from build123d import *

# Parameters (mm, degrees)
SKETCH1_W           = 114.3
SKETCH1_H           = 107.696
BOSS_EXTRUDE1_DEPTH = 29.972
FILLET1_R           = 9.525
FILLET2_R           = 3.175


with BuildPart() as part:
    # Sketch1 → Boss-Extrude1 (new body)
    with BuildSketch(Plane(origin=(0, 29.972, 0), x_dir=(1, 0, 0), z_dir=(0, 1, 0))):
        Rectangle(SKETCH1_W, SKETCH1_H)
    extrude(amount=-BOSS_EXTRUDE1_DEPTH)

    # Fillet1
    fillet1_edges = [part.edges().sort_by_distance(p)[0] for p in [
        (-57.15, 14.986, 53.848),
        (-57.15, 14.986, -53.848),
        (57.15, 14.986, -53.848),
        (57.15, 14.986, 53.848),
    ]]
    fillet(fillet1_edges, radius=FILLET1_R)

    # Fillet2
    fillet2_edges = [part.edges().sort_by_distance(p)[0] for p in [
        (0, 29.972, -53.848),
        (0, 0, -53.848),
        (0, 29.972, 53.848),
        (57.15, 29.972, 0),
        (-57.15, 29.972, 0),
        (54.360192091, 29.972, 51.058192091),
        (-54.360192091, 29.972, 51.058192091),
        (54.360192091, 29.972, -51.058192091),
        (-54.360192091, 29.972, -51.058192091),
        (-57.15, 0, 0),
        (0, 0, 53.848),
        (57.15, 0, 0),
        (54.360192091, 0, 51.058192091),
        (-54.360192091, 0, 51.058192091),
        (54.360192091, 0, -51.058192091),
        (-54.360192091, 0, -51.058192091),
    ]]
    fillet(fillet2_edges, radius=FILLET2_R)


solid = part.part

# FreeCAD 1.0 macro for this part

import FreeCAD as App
import Part
import Sketcher

V = App.Vector
Q = App.Units.Quantity


def edges_at(feature, points):
    """Names of the edges that pass closest to the given points."""
    edges = feature.Shape.Edges
    near = lambda p: min(range(len(edges)), key=lambda i: edges[i].distToShape(Part.Vertex(*p))[0])
    return sorted({f"Edge{near(p) + 1}" for p in points})

doc = App.newDocument("Part")
params = doc.addObject("Spreadsheet::Sheet", "Params")
for row, (alias, value) in enumerate([
    ("sketch1_width", "4.5 in"),
    ("sketch1_height", "4.24 in"),
    ("pad1_length", "1.18 in"),
    ("fillet_radius", "0.375 in"),
    ("fillet2_radius", "0.125 in"),
], start=1):
    params.set(f"A{row}", alias)
    params.set(f"B{row}", "=" + value)
    params.setAlias(f"B{row}", alias)

body = doc.addObject("PartDesign::Body", "Body")

# Sketch on XZ plane
sketch1 = body.newObject("Sketcher::SketchObject", "Sketch")
sketch1.AttachmentSupport = (doc.getObject("XZ_Plane"), [""])
sketch1.MapMode = "FlatFace"
sketch1.AttachmentOffset = App.Placement(V(0, 0, -1.18 * 25.4), App.Rotation())
sketch1.addGeometry(Part.LineSegment(V(-57, -54, 0), V(-57, 54, 0)), False)
sketch1.addGeometry(Part.LineSegment(V(-57, 54, 0), V(57, 54, 0)), False)
sketch1.addGeometry(Part.LineSegment(V(57, 54, 0), V(57, -54, 0)), False)
sketch1.addGeometry(Part.LineSegment(V(57, -54, 0), V(-57, -54, 0)), False)
sketch1.addConstraint(Sketcher.Constraint("Coincident", 0, 2, 1, 1))
sketch1.addConstraint(Sketcher.Constraint("Coincident", 1, 2, 2, 1))
sketch1.addConstraint(Sketcher.Constraint("Coincident", 2, 2, 3, 1))
sketch1.addConstraint(Sketcher.Constraint("Coincident", 3, 2, 0, 1))
sketch1.addConstraint(Sketcher.Constraint("Vertical", 0))
sketch1.addConstraint(Sketcher.Constraint("Horizontal", 1))
sketch1.addConstraint(Sketcher.Constraint("Vertical", 2))
sketch1.addConstraint(Sketcher.Constraint("Horizontal", 3))
sketch1.addConstraint(Sketcher.Constraint("Symmetric", 0, 2, 2, 2, -1, 1))
sketch1.addConstraint(Sketcher.Constraint("DistanceX", 1, 1, 1, 2, Q("4.5 in")))
sketch1.addConstraint(Sketcher.Constraint("DistanceY", 0, 1, 0, 2, Q("4.24 in")))
sketch1.setExpression("Constraints[9]", "Params.sketch1_width")
sketch1.setExpression("Constraints[10]", "Params.sketch1_height")
pad1 = body.newObject("PartDesign::Pad", "Pad")
pad1.Profile = sketch1
pad1.setExpression("Length", "Params.pad1_length")
doc.recompute()

fillet = body.newObject("PartDesign::Fillet", "Fillet")
fillet.Base = (pad1, edges_at(pad1, [
    (-57.15, 14.986, 53.848),
    (-57.15, 14.986, -53.848),
    (57.15, 14.986, -53.848),
    (57.15, 14.986, 53.848),
]))
fillet.setExpression("Radius", "Params.fillet_radius")
doc.recompute()

fillet2 = body.newObject("PartDesign::Fillet", "Fillet001")
fillet2.Base = (fillet, edges_at(fillet, [
    (0, 29.972, -53.848),
    (0, 0, -53.848),
    (0, 29.972, 53.848),
    (57.15, 29.972, 0),
    (-57.15, 29.972, 0),
    (54.36, 29.972, 51.058),
    (-54.36, 29.972, 51.058),
    (54.36, 29.972, -51.058),
    (-54.36, 29.972, -51.058),
    (-57.15, 0, 0),
    (0, 0, 53.848),
    (57.15, 0, 0),
    (54.36, 0, 51.058),
    (-54.36, 0, 51.058),
    (54.36, 0, -51.058),
    (-54.36, 0, -51.058),
]))
fillet2.setExpression("Radius", "Params.fillet2_radius")

doc.recompute()
